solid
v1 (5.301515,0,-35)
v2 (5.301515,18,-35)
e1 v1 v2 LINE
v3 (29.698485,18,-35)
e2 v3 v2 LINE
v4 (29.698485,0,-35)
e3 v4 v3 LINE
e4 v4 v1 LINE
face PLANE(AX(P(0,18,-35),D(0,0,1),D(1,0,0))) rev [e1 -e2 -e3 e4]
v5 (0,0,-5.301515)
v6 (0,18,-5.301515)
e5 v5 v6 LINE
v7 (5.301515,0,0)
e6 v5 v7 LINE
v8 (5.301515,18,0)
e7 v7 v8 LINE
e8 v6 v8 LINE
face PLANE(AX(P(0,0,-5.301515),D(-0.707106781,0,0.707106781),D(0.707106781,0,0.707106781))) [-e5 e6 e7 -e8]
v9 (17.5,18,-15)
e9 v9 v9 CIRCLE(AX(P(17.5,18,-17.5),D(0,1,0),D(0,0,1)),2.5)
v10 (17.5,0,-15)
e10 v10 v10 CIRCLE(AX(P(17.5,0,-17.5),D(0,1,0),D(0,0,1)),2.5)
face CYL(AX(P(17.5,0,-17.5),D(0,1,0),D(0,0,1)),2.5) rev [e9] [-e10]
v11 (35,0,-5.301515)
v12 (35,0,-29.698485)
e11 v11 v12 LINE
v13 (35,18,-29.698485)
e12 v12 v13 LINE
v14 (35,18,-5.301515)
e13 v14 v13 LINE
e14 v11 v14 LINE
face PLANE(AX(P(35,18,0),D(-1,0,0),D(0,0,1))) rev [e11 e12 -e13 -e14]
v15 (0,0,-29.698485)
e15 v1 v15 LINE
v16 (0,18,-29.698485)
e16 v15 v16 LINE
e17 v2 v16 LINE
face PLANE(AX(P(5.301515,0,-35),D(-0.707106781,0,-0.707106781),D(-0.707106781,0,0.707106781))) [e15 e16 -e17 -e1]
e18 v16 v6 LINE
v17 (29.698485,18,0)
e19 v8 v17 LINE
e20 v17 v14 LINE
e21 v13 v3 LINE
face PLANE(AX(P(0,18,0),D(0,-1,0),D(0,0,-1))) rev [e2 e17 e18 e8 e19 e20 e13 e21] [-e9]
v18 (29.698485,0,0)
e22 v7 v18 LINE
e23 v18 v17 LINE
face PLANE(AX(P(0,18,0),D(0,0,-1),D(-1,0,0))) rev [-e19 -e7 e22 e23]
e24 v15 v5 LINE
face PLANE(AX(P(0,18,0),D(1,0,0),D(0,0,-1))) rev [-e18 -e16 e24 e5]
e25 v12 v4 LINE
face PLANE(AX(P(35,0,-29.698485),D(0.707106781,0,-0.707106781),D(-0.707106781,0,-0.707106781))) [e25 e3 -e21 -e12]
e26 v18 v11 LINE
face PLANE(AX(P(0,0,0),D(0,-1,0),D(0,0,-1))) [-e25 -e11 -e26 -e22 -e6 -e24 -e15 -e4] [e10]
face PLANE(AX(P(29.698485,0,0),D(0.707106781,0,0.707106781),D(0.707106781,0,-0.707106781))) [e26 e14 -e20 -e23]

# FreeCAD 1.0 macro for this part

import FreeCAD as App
import Part
import Sketcher
from FreeCAD import Vector
Q = App.Units.Quantity

doc = App.newDocument("Part")
body = doc.addObject("PartDesign::Body", "Body")

sketch1 = doc.addObject("Sketcher::SketchObject", "Sketch")
body.addObject(sketch1)
sketch1.AttachmentSupport = (doc.XZ_Plane, [""])
sketch1.MapMode = "FlatFace"
sketch1.addGeometry(Part.LineSegment(Vector(0, -35, 0), Vector(0, 0, 0)), False)
sketch1.addGeometry(Part.LineSegment(Vector(0, 0, 0), Vector(35, 0, 0)), False)
sketch1.addGeometry(Part.LineSegment(Vector(35, 0, 0), Vector(35, -35, 0)), False)
sketch1.addGeometry(Part.LineSegment(Vector(35, -35, 0), Vector(0, -35, 0)), False)
sketch1.addConstraint(Sketcher.Constraint("Coincident", 0, 2, 1, 1))
sketch1.addConstraint(Sketcher.Constraint("Coincident", 1, 2, 2, 1))
sketch1.addConstraint(Sketcher.Constraint("Coincident", 2, 2, 3, 1))
sketch1.addConstraint(Sketcher.Constraint("Coincident", 3, 2, 0, 1))
sketch1.addConstraint(Sketcher.Constraint("Vertical", 0))
sketch1.addConstraint(Sketcher.Constraint("Horizontal", 1))
sketch1.addConstraint(Sketcher.Constraint("Vertical", 2))
sketch1.addConstraint(Sketcher.Constraint("Horizontal", 3))
sketch1.addConstraint(Sketcher.Constraint("Coincident", 0, 2, -1, 1))
sketch1.addConstraint(Sketcher.Constraint("Equal", 3, 0))
sketch1.addConstraint(Sketcher.Constraint("DistanceX", 1, 1, 1, 2, Q("35 mm")))
pad1 = doc.addObject("PartDesign::Pad", "Pad")
body.addObject(pad1)
pad1.Profile = sketch1
pad1.Length = 18
pad1.Reversed = True

sketch2 = doc.addObject("Sketcher::SketchObject", "Sketch001")
body.addObject(sketch2)
sketch2.AttachmentSupport = (doc.XZ_Plane, [""])
sketch2.MapMode = "FlatFace"
sketch2.AttachmentOffset = App.Placement(Vector(0, 0, -18), App.Rotation())
sketch2.addGeometry(Part.LineSegment(Vector(-6, -41, 0), Vector(-6, 6, 0)), False)
sketch2.addGeometry(Part.LineSegment(Vector(-6, 6, 0), Vector(41, 6, 0)), False)
sketch2.addGeometry(Part.LineSegment(Vector(41, 6, 0), Vector(41, -41, 0)), False)
sketch2.addGeometry(Part.LineSegment(Vector(41, -41, 0), Vector(-6, -41, 0)), False)
sketch2.addGeometry(Part.LineSegment(Vector(0, -30, 0), Vector(5, -35, 0)), False)
sketch2.addGeometry(Part.LineSegment(Vector(5, -35, 0), Vector(30, -35, 0)), False)
sketch2.addGeometry(Part.LineSegment(Vector(30, -35, 0), Vector(35, -30, 0)), False)
sketch2.addGeometry(Part.LineSegment(Vector(35, -30, 0), Vector(35, -5, 0)), False)
sketch2.addGeometry(Part.LineSegment(Vector(35, -5, 0), Vector(30, 0, 0)), False)
sketch2.addGeometry(Part.LineSegment(Vector(30, 0, 0), Vector(5, 0, 0)), False)
sketch2.addGeometry(Part.LineSegment(Vector(5, 0, 0), Vector(0, -5, 0)), False)
sketch2.addGeometry(Part.LineSegment(Vector(0, -5, 0), Vector(0, -30, 0)), False)
sketch2.addConstraint(Sketcher.Constraint("Coincident", 0, 2, 1, 1))
sketch2.addConstraint(Sketcher.Constraint("Coincident", 1, 2, 2, 1))
sketch2.addConstraint(Sketcher.Constraint("Coincident", 2, 2, 3, 1))
sketch2.addConstraint(Sketcher.Constraint("Coincident", 3, 2, 0, 1))
sketch2.addConstraint(Sketcher.Constraint("Coincident", 4, 2, 5, 1))
sketch2.addConstraint(Sketcher.Constraint("Coincident", 5, 2, 6, 1))
sketch2.addConstraint(Sketcher.Constraint("Coincident", 6, 2, 7, 1))
sketch2.addConstraint(Sketcher.Constraint("Coincident", 7, 2, 8, 1))
sketch2.addConstraint(Sketcher.Constraint("Coincident", 8, 2, 9, 1))
sketch2.addConstraint(Sketcher.Constraint("Coincident", 9, 2, 10, 1))
sketch2.addConstraint(Sketcher.Constraint("Coincident", 10, 2, 11, 1))
sketch2.addConstraint(Sketcher.Constraint("Coincident", 11, 2, 4, 1))
sketch2.addConstraint(Sketcher.Constraint("Vertical", 0))
sketch2.addConstraint(Sketcher.Constraint("Horizontal", 1))
sketch2.addConstraint(Sketcher.Constraint("Vertical", 2))
sketch2.addConstraint(Sketcher.Constraint("Horizontal", 3))
sketch2.addConstraint(Sketcher.Constraint("Horizontal", 5))
sketch2.addConstraint(Sketcher.Constraint("Vertical", 7))
sketch2.addConstraint(Sketcher.Constraint("Horizontal", 9))
sketch2.addConstraint(Sketcher.Constraint("Vertical", 11))
sketch2.addConstraint(Sketcher.Constraint("PointOnObject", 8, 2, -1))
sketch2.addConstraint(Sketcher.Constraint("PointOnObject", 10, 2, -2))
sketch2.addConstraint(Sketcher.Constraint("Perpendicular", 4, 6))
sketch2.addConstraint(Sketcher.Constraint("Perpendicular", 6, 8))
sketch2.addConstraint(Sketcher.Constraint("Perpendicular", 8, 10))
sketch2.addConstraint(Sketcher.Constraint("Horizontal", 7, 2, 10, 2))
sketch2.addConstraint(Sketcher.Constraint("Horizontal", 6, 2, 11, 2))
sketch2.addConstraint(Sketcher.Constraint("Vertical", 5, 2, 8, 2))
sketch2.addConstraint(Sketcher.Constraint("Vertical", 4, 2, 9, 2))
sketch2.addConstraint(Sketcher.Constraint("Equal", 3, 0))
sketch2.addConstraint(Sketcher.Constraint("Equal", 9, 7))
sketch2.addConstraint(Sketcher.Constraint("DistanceY", 4, 2, -1, 1, Q("35 mm")))
sketch2.addConstraint(Sketcher.Constraint("DistanceX", 1, 1, 1, 2, Q("47.534 mm")))
sketch2.addConstraint(Sketcher.Constraint("DistanceX", 0, 2, -1, 1, Q("6.267 mm")))
sketch2.addConstraint(Sketcher.Constraint("DistanceY", -1, 1, 0, 2, Q("6.267 mm")))
sketch2.addConstraint(Sketcher.Constraint("DistanceX", 5, 1, 5, 2, Q("24.39697 mm")))
pocket1 = doc.addObject("PartDesign::Pocket", "Pocket")
body.addObject(pocket1)
pocket1.Profile = sketch2
pocket1.Length = 18
pocket1.Reversed = True

sketch3 = doc.addObject("Sketcher::SketchObject", "Sketch002")
body.addObject(sketch3)
sketch3.AttachmentSupport = (doc.XZ_Plane, [""])
sketch3.MapMode = "FlatFace"
sketch3.AttachmentOffset = App.Placement(Vector(0, 0, -18), App.Rotation())
sketch3.addGeometry(Part.Circle(Vector(17.5, -17.5, 0), Vector(0, 0, 1), 2.5), False)
sketch3.addConstraint(Sketcher.Constraint("Diameter", 0, Q("5 mm")))
sketch3.addConstraint(Sketcher.Constraint("DistanceX", -1, 1, 0, 3, Q("17.5 mm")))
sketch3.addConstraint(Sketcher.Constraint("DistanceY", 0, 3, -1, 1, Q("17.5 mm")))
pocket2 = doc.addObject("PartDesign::Pocket", "Pocket001")
body.addObject(pocket2)
pocket2.Profile = sketch3
pocket2.Type = "ThroughAll"
pocket2.Reversed = True

doc.recompute()
